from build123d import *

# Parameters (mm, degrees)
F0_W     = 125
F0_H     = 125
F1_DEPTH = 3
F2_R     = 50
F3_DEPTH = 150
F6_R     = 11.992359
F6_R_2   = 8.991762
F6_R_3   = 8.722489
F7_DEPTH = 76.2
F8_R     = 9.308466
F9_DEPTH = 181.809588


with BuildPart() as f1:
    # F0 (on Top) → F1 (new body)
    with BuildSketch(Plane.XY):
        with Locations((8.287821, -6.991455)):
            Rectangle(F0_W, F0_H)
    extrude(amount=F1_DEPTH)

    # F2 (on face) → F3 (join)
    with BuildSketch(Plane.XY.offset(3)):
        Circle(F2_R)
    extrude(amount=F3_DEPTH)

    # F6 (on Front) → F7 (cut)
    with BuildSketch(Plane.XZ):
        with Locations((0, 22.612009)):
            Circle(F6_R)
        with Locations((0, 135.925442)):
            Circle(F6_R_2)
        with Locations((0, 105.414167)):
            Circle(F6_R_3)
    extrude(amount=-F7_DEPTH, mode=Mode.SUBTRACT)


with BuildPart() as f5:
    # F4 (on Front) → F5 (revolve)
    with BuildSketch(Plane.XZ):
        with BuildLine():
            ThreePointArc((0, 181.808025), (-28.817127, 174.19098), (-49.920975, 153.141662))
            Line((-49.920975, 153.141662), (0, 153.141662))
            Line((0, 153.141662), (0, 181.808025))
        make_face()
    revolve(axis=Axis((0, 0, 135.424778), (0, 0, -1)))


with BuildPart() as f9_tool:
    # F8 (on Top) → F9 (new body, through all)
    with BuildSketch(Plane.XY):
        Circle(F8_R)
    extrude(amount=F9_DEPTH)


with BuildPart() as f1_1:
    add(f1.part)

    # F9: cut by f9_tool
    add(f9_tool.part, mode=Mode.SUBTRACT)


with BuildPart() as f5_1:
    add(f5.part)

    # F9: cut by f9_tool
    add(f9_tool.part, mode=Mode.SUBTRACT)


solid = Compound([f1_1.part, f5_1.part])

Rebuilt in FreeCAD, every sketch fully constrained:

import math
import FreeCAD as App
import Part
import Sketcher

V = App.Vector
Q = App.Units.Quantity

doc = App.newDocument("Part")
params = doc.addObject("Spreadsheet::Sheet", "Params")
for row, (alias, value) in enumerate([
    ("sketch1_width", "125 mm"),
    ("pad1_length", "3 mm"),
    ("sketch2_diameter", "100 mm"),
    ("pad2_length", "150 mm"),
    ("pocket1_length", "76.2 mm"),
    ("revolution_angle", "360 deg"),
    ("pad3_length", "181.809588 mm"),
], start=1):
    params.set(f"A{row}", alias)
    params.set(f"B{row}", "=" + value)
    params.setAlias(f"B{row}", alias)

body = doc.addObject("PartDesign::Body", "Body")

# Sketch on XY plane
sketch1 = doc.addObject("Sketcher::SketchObject", "Sketch")
body.addObject(sketch1)
sketch1.AttachmentSupport = (doc.XY_Plane, [""])
sketch1.MapMode = "FlatFace"
sketch1.addGeometry([
    Part.LineSegment(V(-54, 56, 0), V(-54, -69, 0)),
    Part.LineSegment(V(-54, -69, 0), V(71, -69, 0)),
    Part.LineSegment(V(71, -69, 0), V(71, 56, 0)),
    Part.LineSegment(V(71, 56, 0), V(-54, 56, 0)),
], False)
sketch1.addConstraint([
    Sketcher.Constraint("Coincident", 0, 2, 1, 1),
    Sketcher.Constraint("Coincident", 1, 2, 2, 1),
    Sketcher.Constraint("Coincident", 2, 2, 3, 1),
    Sketcher.Constraint("Coincident", 3, 2, 0, 1),
    Sketcher.Constraint("Vertical", 0),
    Sketcher.Constraint("Horizontal", 1),
    Sketcher.Constraint("Vertical", 2),
    Sketcher.Constraint("Horizontal", 3),
    Sketcher.Constraint("Equal", 3, 0),
    Sketcher.Constraint("DistanceX", 1, 1, 1, 2, Q("125 mm")),
    Sketcher.Constraint("DistanceX", 0, 2, -1, 1, Q("54.212179 mm")),
    Sketcher.Constraint("DistanceY", 0, 2, -1, 1, Q("69.491455 mm")),
])
sketch1.setExpression("Constraints[9]", "Params.sketch1_width")
pad1 = doc.addObject("PartDesign::Pad", "Pad")
body.addObject(pad1)
pad1.Profile = sketch1
pad1.setExpression("Length", "Params.pad1_length")

# Sketch on XY plane
sketch2 = doc.addObject("Sketcher::SketchObject", "Sketch001")
body.addObject(sketch2)
sketch2.AttachmentSupport = (doc.XY_Plane, [""])
sketch2.MapMode = "FlatFace"
sketch2.AttachmentOffset = App.Placement(V(0, 0, 3), App.Rotation())
sketch2.addGeometry(Part.Circle(V(0, 0, 0), V(0, 0, 1), 50), False)
sketch2.addConstraint([
    Sketcher.Constraint("Coincident", 0, 3, -1, 1),
    Sketcher.Constraint("Diameter", 0, Q("100 mm")),
])
sketch2.setExpression("Constraints[1]", "Params.sketch2_diameter")
pad2 = doc.addObject("PartDesign::Pad", "Pad001")
body.addObject(pad2)
pad2.Profile = sketch2
pad2.setExpression("Length", "Params.pad2_length")

# Sketch on XZ plane
sketch3 = doc.addObject("Sketcher::SketchObject", "Sketch002")
body.addObject(sketch3)
sketch3.AttachmentSupport = (doc.XZ_Plane, [""])
sketch3.MapMode = "FlatFace"
sketch3.addGeometry([
    Part.Circle(V(0, 23, 0), V(0, 0, 1), 12),
    Part.Circle(V(0, 136, 0), V(0, 0, 1), 9),
    Part.Circle(V(0, 105, 0), V(0, 0, 1), 9),
], False)
sketch3.addConstraint([
    Sketcher.Constraint("PointOnObject", 0, 3, -2),
    Sketcher.Constraint("PointOnObject", 1, 3, -2),
    Sketcher.Constraint("PointOnObject", 2, 3, -2),
    Sketcher.Constraint("Diameter", 0, Q("23.984718 mm")),
    Sketcher.Constraint("Diameter", 1, Q("17.983524 mm")),
    Sketcher.Constraint("Diameter", 2, Q("17.444978 mm")),
    Sketcher.Constraint("DistanceY", -1, 1, 0, 3, Q("22.612009 mm")),
    Sketcher.Constraint("DistanceY", -1, 1, 1, 3, Q("135.925442 mm")),
    Sketcher.Constraint("DistanceY", 0, 3, 2, 3, Q("82.802158 mm")),
])
pocket1 = doc.addObject("PartDesign::Pocket", "Pocket")
body.addObject(pocket1)
pocket1.Profile = sketch3
pocket1.setExpression("Length", "Params.pocket1_length")
body2 = doc.addObject("PartDesign::Body", "Body001")

# Sketch on XZ plane
sketch4 = doc.addObject("Sketcher::SketchObject", "Sketch003")
body2.addObject(sketch4)
sketch4.AttachmentSupport = (doc.getObject("XZ_Plane001"), [""])
sketch4.MapMode = "FlatFace"
sketch4.addGeometry([
    Part.ArcOfCircle(Part.Circle(V(0, 124, 0), V(0, 0, 1), 57), math.radians(90), math.radians(150)),
    Part.LineSegment(V(-50, 153, 0), V(0, 153, 0)),
    Part.LineSegment(V(0, 153, 0), V(0, 182, 0)),
], False)
sketch4.addConstraint([
    Sketcher.Constraint("Coincident", 0, 2, 1, 1),
    Sketcher.Constraint("Coincident", 1, 2, 2, 1),
    Sketcher.Constraint("Coincident", 2, 2, 0, 1),
    Sketcher.Constraint("Horizontal", 1),
    Sketcher.Constraint("Vertical", 2),
    Sketcher.Constraint("PointOnObject", 1, 2, -2),
    Sketcher.Constraint("Radius", 0, Q("57.35844 mm")),
    Sketcher.Constraint("DistanceX", 1, 1, 1, 2, Q("49.920975 mm")),
    Sketcher.Constraint("DistanceY", 2, 1, 2, 2, Q("28.666363 mm")),
    Sketcher.Constraint("DistanceY", -1, 1, 0, 3, Q("124.450148 mm")),
])
revolution = doc.addObject("PartDesign::Revolution", "Revolution")
body2.addObject(revolution)
revolution.Profile = sketch4
revolution.ReferenceAxis = (sketch4, ["V_Axis"])
revolution.setExpression("Angle", "Params.revolution_angle")
body3 = doc.addObject("PartDesign::Body", "Body002")

# Sketch on XY plane
sketch5 = doc.addObject("Sketcher::SketchObject", "Sketch004")
body3.addObject(sketch5)
sketch5.AttachmentSupport = (doc.getObject("XY_Plane002"), [""])
sketch5.MapMode = "FlatFace"
sketch5.addGeometry(Part.Circle(V(0, 0, 0), V(0, 0, 1), 9), False)
sketch5.addConstraint([
    Sketcher.Constraint("Coincident", 0, 3, -1, 1),
    Sketcher.Constraint("Diameter", 0, Q("18.616932 mm")),
])
pad3 = doc.addObject("PartDesign::Pad", "Pad002")
body3.addObject(pad3)
pad3.Profile = sketch5
pad3.setExpression("Length", "Params.pad3_length")
doc.recompute()

body4 = doc.addObject("PartDesign::Body", "Body003")
body4.BaseFeature = body3
boolean = doc.addObject("PartDesign::Boolean", "Boolean")
body.addObject(boolean)
boolean.Type = "Cut"
boolean.addObjects([body4])
doc.recompute()

boolean2 = doc.addObject("PartDesign::Boolean", "Boolean001")
body2.addObject(boolean2)
boolean2.Type = "Cut"
boolean2.addObjects([body3])

doc.recompute()
